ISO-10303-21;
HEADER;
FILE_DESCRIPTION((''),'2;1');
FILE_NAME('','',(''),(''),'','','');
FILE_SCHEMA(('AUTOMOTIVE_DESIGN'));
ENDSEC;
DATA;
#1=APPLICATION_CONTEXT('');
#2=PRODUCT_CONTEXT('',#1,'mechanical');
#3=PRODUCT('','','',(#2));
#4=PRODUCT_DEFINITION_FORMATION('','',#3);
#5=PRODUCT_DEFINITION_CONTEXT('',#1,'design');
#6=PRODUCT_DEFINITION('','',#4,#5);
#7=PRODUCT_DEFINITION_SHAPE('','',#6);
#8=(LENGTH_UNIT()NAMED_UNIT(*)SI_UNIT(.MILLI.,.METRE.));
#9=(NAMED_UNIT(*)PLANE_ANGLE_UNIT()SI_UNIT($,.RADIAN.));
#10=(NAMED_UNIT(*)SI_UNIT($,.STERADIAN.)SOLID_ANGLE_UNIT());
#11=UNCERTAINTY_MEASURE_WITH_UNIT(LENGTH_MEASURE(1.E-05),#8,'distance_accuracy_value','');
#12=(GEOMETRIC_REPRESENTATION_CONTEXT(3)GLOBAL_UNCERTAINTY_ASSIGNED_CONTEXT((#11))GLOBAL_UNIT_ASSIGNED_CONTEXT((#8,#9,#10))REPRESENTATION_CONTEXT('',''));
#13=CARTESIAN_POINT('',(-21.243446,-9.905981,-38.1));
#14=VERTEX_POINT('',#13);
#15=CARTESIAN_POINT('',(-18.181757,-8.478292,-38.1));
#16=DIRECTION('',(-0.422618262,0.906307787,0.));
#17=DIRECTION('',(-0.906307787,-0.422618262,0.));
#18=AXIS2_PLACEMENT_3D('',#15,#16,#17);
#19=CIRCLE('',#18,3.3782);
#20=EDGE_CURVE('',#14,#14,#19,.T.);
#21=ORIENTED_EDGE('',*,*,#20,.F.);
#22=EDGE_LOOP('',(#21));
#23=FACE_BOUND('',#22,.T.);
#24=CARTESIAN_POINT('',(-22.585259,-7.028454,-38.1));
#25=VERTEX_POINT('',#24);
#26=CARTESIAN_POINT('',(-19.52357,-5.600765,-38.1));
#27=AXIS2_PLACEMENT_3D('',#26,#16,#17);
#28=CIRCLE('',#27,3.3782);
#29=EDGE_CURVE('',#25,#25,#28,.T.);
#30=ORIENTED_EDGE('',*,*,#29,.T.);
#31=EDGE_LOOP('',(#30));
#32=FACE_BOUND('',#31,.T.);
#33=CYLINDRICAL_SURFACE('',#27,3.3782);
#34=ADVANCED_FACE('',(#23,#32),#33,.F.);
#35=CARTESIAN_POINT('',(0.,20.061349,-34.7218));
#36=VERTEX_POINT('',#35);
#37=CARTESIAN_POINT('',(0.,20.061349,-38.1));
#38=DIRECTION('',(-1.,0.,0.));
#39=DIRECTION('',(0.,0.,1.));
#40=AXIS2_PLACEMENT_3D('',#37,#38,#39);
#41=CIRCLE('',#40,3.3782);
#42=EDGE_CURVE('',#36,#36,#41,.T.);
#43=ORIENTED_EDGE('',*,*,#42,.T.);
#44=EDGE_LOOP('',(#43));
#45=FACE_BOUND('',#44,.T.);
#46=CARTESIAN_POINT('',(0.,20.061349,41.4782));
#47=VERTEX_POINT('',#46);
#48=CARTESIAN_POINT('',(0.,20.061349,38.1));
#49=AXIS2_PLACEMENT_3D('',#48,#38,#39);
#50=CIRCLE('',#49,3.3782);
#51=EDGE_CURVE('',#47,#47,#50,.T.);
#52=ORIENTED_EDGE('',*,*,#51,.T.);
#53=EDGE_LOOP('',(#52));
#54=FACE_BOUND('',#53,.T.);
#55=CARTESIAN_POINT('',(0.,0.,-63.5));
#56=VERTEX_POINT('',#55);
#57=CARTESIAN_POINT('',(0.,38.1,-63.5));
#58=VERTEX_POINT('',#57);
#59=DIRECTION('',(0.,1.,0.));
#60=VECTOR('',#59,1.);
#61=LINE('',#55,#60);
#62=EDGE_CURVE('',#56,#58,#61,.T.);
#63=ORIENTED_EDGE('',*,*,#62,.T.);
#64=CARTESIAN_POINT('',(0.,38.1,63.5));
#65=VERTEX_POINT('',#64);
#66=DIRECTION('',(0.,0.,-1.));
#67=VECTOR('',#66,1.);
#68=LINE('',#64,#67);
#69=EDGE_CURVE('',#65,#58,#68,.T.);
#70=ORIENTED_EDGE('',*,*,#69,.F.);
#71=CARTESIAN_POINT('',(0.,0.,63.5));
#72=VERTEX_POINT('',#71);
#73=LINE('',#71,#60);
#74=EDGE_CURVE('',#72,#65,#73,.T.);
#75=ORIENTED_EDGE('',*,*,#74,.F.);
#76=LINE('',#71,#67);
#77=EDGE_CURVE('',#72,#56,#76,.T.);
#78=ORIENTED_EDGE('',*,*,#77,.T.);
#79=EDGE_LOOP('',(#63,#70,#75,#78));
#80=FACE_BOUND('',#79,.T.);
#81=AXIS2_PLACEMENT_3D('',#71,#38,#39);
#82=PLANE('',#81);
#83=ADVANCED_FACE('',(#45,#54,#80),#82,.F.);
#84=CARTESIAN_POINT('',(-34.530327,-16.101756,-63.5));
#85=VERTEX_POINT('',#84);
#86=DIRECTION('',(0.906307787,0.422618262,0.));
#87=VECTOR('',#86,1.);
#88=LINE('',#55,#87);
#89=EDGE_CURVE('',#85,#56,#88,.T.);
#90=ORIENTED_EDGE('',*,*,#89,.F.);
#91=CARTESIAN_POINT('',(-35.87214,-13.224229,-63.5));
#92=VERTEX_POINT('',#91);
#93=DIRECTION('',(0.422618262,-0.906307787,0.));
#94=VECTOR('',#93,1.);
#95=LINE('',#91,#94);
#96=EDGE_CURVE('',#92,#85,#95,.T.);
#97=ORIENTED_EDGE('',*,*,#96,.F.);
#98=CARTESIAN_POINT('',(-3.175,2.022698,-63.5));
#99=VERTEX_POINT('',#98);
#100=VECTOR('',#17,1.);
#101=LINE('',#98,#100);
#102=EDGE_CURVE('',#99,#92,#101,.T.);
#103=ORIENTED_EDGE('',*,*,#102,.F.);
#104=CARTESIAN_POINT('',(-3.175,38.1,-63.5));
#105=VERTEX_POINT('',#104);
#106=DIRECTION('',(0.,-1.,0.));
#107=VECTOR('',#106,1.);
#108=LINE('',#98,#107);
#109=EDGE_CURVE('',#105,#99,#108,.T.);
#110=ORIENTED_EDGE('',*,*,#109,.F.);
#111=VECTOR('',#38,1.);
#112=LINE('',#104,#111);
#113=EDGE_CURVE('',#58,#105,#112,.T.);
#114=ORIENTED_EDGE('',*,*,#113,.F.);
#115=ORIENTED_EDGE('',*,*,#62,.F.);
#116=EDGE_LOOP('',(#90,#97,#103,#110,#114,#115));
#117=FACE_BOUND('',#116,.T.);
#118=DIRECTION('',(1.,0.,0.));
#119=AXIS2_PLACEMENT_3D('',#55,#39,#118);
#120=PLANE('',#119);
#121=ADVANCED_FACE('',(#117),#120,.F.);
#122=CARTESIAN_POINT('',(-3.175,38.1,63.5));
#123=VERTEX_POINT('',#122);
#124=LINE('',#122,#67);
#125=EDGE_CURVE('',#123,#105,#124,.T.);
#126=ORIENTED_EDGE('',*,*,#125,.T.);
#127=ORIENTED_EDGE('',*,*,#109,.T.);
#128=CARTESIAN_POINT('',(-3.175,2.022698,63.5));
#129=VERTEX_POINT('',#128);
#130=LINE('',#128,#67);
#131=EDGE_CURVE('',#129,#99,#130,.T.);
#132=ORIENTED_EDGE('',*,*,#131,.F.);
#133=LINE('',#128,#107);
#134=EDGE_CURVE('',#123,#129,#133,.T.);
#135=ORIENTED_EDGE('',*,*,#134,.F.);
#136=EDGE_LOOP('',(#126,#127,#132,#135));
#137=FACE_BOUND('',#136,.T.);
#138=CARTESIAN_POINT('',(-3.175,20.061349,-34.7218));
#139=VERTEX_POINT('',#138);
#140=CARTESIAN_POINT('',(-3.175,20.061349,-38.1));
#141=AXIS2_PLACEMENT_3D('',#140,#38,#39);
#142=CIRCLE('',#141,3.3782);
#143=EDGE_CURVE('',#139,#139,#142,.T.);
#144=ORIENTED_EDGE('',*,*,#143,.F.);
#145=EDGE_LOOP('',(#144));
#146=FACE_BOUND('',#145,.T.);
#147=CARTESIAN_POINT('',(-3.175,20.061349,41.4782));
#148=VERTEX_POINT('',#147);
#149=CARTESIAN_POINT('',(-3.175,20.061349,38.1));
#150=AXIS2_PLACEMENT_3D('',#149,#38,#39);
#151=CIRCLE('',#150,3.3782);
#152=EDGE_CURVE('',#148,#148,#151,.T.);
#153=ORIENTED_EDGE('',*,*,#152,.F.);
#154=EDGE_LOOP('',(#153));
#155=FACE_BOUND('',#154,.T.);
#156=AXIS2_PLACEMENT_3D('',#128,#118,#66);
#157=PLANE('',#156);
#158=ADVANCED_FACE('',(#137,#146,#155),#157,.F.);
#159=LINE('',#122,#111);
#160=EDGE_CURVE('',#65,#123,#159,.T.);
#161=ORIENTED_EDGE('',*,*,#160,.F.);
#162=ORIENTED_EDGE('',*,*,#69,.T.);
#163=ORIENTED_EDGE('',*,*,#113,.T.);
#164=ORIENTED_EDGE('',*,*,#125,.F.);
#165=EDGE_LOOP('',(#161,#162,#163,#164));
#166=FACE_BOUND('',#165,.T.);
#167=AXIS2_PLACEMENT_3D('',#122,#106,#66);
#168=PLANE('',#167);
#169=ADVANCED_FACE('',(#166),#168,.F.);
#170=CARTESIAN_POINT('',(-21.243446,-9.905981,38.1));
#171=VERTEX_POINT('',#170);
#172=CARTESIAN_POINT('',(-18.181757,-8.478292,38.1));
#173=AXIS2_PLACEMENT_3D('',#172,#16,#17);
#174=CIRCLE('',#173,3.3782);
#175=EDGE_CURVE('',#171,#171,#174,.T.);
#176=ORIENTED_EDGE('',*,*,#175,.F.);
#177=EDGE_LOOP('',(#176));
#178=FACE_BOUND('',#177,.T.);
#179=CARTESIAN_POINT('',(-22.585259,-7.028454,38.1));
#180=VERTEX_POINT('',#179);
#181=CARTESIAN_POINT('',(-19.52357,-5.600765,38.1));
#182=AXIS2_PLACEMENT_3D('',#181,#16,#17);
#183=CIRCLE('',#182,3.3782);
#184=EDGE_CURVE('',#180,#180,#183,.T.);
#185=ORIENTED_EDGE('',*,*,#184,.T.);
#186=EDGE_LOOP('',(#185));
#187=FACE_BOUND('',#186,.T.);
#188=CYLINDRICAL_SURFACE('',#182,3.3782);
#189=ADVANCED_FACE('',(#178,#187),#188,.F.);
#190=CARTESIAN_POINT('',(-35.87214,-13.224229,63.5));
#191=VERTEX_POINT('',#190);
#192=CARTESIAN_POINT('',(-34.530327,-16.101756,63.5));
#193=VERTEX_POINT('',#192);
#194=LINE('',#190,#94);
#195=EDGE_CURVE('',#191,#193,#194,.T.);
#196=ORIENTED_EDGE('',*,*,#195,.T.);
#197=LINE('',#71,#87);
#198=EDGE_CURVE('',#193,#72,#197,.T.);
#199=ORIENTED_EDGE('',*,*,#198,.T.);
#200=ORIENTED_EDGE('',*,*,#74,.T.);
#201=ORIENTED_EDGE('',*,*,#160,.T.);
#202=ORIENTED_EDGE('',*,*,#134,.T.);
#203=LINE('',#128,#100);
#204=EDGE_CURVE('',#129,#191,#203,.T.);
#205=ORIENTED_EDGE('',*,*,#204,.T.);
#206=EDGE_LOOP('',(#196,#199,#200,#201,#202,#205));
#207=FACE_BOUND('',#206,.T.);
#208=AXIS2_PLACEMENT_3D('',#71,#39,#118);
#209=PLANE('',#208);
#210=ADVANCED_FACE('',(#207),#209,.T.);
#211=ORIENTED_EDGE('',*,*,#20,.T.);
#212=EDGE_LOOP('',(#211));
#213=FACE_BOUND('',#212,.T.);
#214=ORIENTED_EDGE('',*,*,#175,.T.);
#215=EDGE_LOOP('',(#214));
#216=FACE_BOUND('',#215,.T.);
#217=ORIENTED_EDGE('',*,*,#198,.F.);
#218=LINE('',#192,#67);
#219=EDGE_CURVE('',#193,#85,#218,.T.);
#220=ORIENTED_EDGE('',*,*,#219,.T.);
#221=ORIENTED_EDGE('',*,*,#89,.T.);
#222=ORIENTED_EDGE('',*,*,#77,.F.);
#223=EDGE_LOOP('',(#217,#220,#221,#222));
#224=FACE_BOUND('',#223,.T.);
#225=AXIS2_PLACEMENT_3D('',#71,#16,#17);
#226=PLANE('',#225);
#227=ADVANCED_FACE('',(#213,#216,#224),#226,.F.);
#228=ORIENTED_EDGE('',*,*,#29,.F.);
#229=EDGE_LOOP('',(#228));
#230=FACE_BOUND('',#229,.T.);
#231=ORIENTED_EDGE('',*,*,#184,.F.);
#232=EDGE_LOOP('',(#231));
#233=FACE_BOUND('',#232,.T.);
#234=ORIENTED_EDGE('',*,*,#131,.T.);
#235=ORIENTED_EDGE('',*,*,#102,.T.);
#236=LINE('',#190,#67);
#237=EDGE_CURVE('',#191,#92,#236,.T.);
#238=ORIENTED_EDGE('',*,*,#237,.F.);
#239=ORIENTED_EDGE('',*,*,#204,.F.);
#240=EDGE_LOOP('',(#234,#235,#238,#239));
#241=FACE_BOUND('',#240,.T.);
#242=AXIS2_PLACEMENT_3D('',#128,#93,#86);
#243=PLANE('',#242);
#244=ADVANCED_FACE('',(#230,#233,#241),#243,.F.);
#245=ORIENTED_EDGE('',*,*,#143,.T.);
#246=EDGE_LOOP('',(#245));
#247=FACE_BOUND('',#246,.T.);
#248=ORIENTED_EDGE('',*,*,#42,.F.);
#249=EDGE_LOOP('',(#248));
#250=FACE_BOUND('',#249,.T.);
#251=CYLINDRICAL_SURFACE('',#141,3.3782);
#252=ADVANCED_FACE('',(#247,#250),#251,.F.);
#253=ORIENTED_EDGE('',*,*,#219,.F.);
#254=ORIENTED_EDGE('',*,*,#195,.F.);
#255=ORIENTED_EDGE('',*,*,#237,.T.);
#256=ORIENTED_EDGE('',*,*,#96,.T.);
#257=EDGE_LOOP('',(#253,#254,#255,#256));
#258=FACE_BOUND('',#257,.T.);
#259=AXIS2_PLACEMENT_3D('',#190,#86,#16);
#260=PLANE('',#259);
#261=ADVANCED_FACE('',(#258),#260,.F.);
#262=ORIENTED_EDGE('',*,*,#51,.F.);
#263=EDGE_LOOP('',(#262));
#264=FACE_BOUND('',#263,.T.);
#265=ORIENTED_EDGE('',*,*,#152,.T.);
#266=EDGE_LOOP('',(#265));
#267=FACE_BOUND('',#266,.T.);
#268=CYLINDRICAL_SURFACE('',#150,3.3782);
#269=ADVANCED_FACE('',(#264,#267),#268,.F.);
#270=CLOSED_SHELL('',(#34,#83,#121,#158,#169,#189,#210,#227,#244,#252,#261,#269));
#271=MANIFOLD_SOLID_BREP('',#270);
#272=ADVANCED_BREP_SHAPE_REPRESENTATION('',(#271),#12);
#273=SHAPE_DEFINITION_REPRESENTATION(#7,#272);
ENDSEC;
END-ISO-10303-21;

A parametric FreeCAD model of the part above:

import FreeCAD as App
import Part
import Sketcher
Q = App.Units.Quantity


def add_polygon(sketch, points):
    """Adds a closed chain of lines whose ends are joined by coincident constraints."""
    first, n = sketch.GeometryCount, len(points)
    for a, b in zip(points, points[1:] + points[:1]):
        sketch.addGeometry(Part.LineSegment(App.Vector(*a, 0), App.Vector(*b, 0)), False)
    for i in range(n):
        sketch.addConstraint(Sketcher.Constraint("Coincident", first + i, 2, first + (i + 1) % n, 1))

doc = App.newDocument("Part")
body = doc.addObject("PartDesign::Body", "Body")

# Sketch on XY plane
sketch1 = body.newObject("Sketcher::SketchObject", "Sketch")
sketch1.AttachmentSupport = (doc.getObject("XY_Plane"), [""])
sketch1.MapMode = "FlatFace"
add_polygon(sketch1, [(0, 0), (0, 38.1), (-3.2, 38.1), (-3.2, 2), (-35.9, -13.2), (-34.5, -16.1)])  # lines 0-5
sketch1.addConstraint(Sketcher.Constraint("Vertical", 0))
sketch1.addConstraint(Sketcher.Constraint("Horizontal", 1))
sketch1.addConstraint(Sketcher.Constraint("Vertical", 2))
sketch1.addConstraint(Sketcher.Constraint("Coincident", 5, 2, -1, 1))
sketch1.addConstraint(Sketcher.Constraint("Perpendicular", 3, 4))
sketch1.addConstraint(Sketcher.Constraint("Perpendicular", 4, 5))
sketch1.addConstraint(Sketcher.Constraint("DistanceY", 0, 1, 0, 2, Q("1.5 in")))
sketch1.addConstraint(Sketcher.Constraint("Angle", 3, Q("-155 deg")))
sketch1.addConstraint(Sketcher.Constraint("Distance", 5, Q("1.5 in")))
sketch1.addConstraint(Sketcher.Constraint("DistanceX", 1, 2, 1, 1, Q("0.125 in")))
sketch1.addConstraint(Sketcher.Constraint("Distance", 4, Q("0.125 in")))
pad1 = body.newObject("PartDesign::Pad", "Pad")
pad1.Profile = sketch1
pad1.Length = Q("5 in")
pad1.Midplane = True

# Sketch on YZ plane
sketch2 = body.newObject("Sketcher::SketchObject", "Sketch001")
sketch2.AttachmentSupport = (doc.getObject("YZ_Plane"), [""])
sketch2.MapMode = "FlatFace"
sketch2.AttachmentOffset = App.Placement(App.Vector(0, 0, -0.125 * 25.4), App.Rotation())
sketch2.addGeometry(Part.Circle(App.Vector(20.1, -38.1, 0), App.Vector(0, 0, 1), 3.4), False)
sketch2.addGeometry(Part.Circle(App.Vector(20.1, 38.1, 0), App.Vector(0, 0, 1), 3.4), False)
sketch2.addConstraint(Sketcher.Constraint("Equal", 0, 1))
sketch2.addConstraint(Sketcher.Constraint("Symmetric", 0, 3, 1, 3, -1))
sketch2.addConstraint(Sketcher.Constraint("Diameter", 0, Q("0.266 in")))
sketch2.addConstraint(Sketcher.Constraint("DistanceY", 0, 3, 1, 3, Q("3 in")))
sketch2.addConstraint(Sketcher.Constraint("DistanceX", -1, 1, 0, 3, Q("20.061349 mm")))
doc.recompute()
hole = body.newObject("PartDesign::Hole", "Hole")
hole.Profile = sketch2
hole.ThreadType = "None"
hole.Diameter = Q("0.266 in")
hole.DepthType = "ThroughAll"
hole.Reversed = True

# Sketch on an angled plane
sketch3 = body.newObject("Sketcher::SketchObject", "Sketch002")
sketch3.Placement = App.Placement(App.Vector(-1.341809, 2.877522, 0), App.Rotation(App.Vector(0.906307925, 0.422617965, 0), App.Vector(0, 0, -0.999999999), App.Vector(-0.422617965, 0.906307925, 0), "ZXY"))
sketch3.addGeometry(Part.Circle(App.Vector(-20.1, 38.1, 0), App.Vector(0, 0, 1), 3.4), False)
sketch3.addGeometry(Part.Circle(App.Vector(-20.1, -38.1, 0), App.Vector(0, 0, 1), 3.4), False)
sketch3.addConstraint(Sketcher.Constraint("Equal", 0, 1))
sketch3.addConstraint(Sketcher.Constraint("Symmetric", 0, 3, 1, 3, -1))
sketch3.addConstraint(Sketcher.Constraint("Diameter", 0, Q("0.266 in")))
sketch3.addConstraint(Sketcher.Constraint("DistanceY", 1, 3, 0, 3, Q("3 in")))
sketch3.addConstraint(Sketcher.Constraint("DistanceX", 0, 3, -1, 1, Q("20.06135 mm")))
doc.recompute()
hole2 = body.newObject("PartDesign::Hole", "Hole001")
hole2.Profile = sketch3
hole2.ThreadType = "None"
hole2.Diameter = Q("0.266 in")
hole2.DepthType = "ThroughAll"

doc.recompute()
